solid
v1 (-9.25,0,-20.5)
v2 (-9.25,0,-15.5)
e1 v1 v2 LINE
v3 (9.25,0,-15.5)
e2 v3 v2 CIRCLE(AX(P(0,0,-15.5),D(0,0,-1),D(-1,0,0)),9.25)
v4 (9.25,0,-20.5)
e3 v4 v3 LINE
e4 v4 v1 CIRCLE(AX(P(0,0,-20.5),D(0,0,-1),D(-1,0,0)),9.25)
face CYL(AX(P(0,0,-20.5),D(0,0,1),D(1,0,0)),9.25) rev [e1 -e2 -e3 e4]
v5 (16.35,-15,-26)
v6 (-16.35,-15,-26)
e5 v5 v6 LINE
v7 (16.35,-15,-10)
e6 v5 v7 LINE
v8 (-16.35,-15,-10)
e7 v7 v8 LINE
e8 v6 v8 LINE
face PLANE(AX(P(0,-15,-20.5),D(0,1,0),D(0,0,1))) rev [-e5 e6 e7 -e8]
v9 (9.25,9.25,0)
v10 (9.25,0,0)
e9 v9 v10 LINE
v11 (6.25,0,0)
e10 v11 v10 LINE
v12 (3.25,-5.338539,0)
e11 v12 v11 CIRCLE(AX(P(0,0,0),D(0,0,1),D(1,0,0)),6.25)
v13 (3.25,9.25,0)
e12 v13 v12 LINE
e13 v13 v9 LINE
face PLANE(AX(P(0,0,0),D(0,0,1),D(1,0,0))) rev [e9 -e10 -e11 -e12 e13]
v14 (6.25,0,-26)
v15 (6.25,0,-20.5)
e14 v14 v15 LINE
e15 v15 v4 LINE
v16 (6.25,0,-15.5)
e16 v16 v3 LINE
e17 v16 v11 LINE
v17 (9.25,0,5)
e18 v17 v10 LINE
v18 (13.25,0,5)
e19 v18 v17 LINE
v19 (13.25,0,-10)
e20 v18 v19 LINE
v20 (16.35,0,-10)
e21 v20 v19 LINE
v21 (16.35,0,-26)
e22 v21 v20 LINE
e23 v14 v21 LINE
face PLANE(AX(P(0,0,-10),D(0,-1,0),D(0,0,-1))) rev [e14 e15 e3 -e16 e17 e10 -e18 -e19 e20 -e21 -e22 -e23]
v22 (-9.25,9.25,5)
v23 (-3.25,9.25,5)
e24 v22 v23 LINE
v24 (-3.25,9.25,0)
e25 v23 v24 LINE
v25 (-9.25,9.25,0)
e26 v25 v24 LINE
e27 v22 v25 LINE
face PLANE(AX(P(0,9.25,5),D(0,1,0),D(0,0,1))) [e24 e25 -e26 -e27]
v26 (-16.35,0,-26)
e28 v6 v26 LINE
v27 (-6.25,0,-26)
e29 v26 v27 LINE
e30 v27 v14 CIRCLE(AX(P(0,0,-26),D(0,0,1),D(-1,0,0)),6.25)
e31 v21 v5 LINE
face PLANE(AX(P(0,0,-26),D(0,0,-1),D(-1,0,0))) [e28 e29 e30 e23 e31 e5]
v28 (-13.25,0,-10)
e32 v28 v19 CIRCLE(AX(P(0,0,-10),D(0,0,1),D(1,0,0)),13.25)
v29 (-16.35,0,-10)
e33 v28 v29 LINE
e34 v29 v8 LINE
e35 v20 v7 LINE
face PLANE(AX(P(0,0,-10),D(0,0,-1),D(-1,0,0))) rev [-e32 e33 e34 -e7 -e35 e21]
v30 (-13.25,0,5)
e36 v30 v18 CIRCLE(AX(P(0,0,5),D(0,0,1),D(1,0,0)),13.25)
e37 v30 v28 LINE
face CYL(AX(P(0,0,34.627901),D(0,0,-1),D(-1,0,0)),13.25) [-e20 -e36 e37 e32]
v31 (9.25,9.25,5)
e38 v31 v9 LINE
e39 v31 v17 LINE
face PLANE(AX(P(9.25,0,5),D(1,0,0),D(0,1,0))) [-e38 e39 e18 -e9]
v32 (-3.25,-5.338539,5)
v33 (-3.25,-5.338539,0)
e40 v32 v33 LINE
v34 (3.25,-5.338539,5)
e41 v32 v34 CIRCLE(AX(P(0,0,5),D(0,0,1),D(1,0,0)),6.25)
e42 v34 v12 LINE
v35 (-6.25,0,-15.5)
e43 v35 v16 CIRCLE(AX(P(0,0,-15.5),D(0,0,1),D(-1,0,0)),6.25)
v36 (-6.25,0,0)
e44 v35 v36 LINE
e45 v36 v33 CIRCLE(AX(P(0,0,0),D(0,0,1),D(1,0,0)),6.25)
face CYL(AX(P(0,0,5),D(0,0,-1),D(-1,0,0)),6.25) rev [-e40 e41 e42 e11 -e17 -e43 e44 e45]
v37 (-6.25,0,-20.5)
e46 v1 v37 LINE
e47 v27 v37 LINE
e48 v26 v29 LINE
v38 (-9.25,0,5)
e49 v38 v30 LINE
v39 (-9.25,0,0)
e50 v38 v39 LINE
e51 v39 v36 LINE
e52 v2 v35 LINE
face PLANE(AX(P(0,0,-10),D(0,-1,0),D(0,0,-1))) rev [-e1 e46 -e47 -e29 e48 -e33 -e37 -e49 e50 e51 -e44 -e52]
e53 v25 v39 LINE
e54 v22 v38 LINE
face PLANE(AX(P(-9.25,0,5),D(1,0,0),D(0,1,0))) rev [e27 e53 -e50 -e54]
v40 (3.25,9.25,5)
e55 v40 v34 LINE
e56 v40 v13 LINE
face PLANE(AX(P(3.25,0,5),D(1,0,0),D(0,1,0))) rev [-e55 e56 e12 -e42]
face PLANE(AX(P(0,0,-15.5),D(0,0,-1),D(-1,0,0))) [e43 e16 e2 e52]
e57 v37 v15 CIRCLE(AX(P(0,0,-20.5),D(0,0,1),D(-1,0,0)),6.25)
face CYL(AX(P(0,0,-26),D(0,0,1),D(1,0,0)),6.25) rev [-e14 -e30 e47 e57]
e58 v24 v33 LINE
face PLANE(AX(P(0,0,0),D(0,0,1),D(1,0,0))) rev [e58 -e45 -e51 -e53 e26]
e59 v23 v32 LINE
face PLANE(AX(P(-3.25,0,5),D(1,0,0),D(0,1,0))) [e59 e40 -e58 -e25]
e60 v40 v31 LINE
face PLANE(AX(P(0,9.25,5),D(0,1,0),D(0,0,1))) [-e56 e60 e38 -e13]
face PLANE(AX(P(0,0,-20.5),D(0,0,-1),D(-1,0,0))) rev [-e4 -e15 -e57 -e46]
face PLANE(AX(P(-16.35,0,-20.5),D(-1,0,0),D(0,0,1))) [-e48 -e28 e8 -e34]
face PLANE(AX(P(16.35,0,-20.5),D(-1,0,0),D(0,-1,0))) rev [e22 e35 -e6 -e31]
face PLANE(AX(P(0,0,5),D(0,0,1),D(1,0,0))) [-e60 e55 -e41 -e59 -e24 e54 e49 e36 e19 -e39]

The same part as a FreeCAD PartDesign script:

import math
import FreeCAD as App
import Part
import Sketcher

V = App.Vector

doc = App.newDocument("Part")
body = doc.addObject("PartDesign::Body", "Body")

sketch1 = doc.addObject("Sketcher::SketchObject", "Sketch")
body.addObject(sketch1)
sketch1.AttachmentSupport = (doc.XY_Plane, [""])
sketch1.MapMode = "FlatFace"
sketch1.addGeometry([
    Part.LineSegment(V(-3, 9, 0), V(-9, 9, 0)),
    Part.LineSegment(V(-9, 9, 0), V(-9, 0, 0)),
    Part.ArcOfCircle(Part.Circle(V(0, 0, 0), V(0, 0, 1), 9), math.radians(-180), math.radians(0)),
    Part.LineSegment(V(9, 0, 0), V(9, 9, 0)),
    Part.LineSegment(V(9, 9, 0), V(3, 9, 0)),
    Part.LineSegment(V(3, 9, 0), V(3, -5, 0)),
    Part.ArcOfCircle(Part.Circle(V(0, 0, 0), V(0, 0, 1), 6), math.radians(-121), math.radians(-59)),
    Part.LineSegment(V(-3, -5, 0), V(-3, 9, 0)),
], False)
sketch1.addConstraint([
    Sketcher.Constraint("Coincident", 0, 2, 1, 1),
    Sketcher.Constraint("Tangent", 1, 2, 2, 1),
    Sketcher.Constraint("Tangent", 2, 2, 3, 1),
    Sketcher.Constraint("Coincident", 3, 2, 4, 1),
    Sketcher.Constraint("Coincident", 4, 2, 5, 1),
    Sketcher.Constraint("Coincident", 5, 2, 6, 2),
    Sketcher.Constraint("Coincident", 6, 1, 7, 1),
    Sketcher.Constraint("Coincident", 7, 2, 0, 1),
    Sketcher.Constraint("Horizontal", 0),
    Sketcher.Constraint("Vertical", 1),
    Sketcher.Constraint("Vertical", 3),
    Sketcher.Constraint("Horizontal", 4),
    Sketcher.Constraint("Vertical", 5),
    Sketcher.Constraint("Vertical", 7),
    Sketcher.Constraint("Coincident", 2, 3, -1, 1),
    Sketcher.Constraint("Coincident", 6, 3, -1, 1),
    Sketcher.Constraint("Symmetric", 4, 2, 7, 2, -2),
    Sketcher.Constraint("DistanceX", 0, 2, 0, 1, 6.0),
    Sketcher.Constraint("Radius", 2, 9.25),
    Sketcher.Constraint("Radius", 6, 6.25),
    Sketcher.Constraint("DistanceY", 1, 2, 1, 1, 9.25),
])
pad1 = doc.addObject("PartDesign::Pad", "Pad")
body.addObject(pad1)
pad1.Profile = sketch1
pad1.Length = 5

sketch2 = doc.addObject("Sketcher::SketchObject", "Sketch001")
body.addObject(sketch2)
sketch2.AttachmentSupport = (doc.XY_Plane, [""])
sketch2.MapMode = "FlatFace"
sketch2.addGeometry([
    Part.LineSegment(V(-6.2, 0, 0), V(-9.2, 0, 0)),
    Part.ArcOfCircle(Part.Circle(V(0, 0, 0), V(0, 0, 1), 9.2), math.radians(-180), math.radians(0)),
    Part.LineSegment(V(9.2, 0, 0), V(6.2, 0, 0)),
    Part.ArcOfCircle(Part.Circle(V(0, 0, 0), V(0, 0, 1), 6.2), math.radians(-180), math.radians(0)),
], False)
sketch2.addConstraint([
    Sketcher.Constraint("Coincident", 0, 2, 1, 1),
    Sketcher.Constraint("Coincident", 1, 2, 2, 1),
    Sketcher.Constraint("Coincident", 2, 2, 3, 2),
    Sketcher.Constraint("Coincident", 3, 1, 0, 1),
    Sketcher.Constraint("Horizontal", 0),
    Sketcher.Constraint("Horizontal", 2),
    Sketcher.Constraint("Coincident", 1, 3, -1, 1),
    Sketcher.Constraint("Coincident", 3, 3, -1, 1),
    Sketcher.Constraint("PointOnObject", 0, 2, -1),
    Sketcher.Constraint("PointOnObject", 1, 2, -1),
    Sketcher.Constraint("DistanceX", 0, 2, 0, 1, 3.0),
    Sketcher.Constraint("Radius", 1, 9.25),
])
pad2 = doc.addObject("PartDesign::Pad", "Pad001")
body.addObject(pad2)
pad2.Profile = sketch2
pad2.Length = 10
pad2.Reversed = True
body2 = doc.addObject("PartDesign::Body", "Body001")

sketch3 = doc.addObject("Sketcher::SketchObject", "Sketch002")
body2.addObject(sketch3)
sketch3.AttachmentSupport = (doc.getObject("XY_Plane001"), [""])
sketch3.MapMode = "FlatFace"
sketch3.AttachmentOffset = App.Placement(V(0, 0, -10), App.Rotation())
sketch3.addGeometry([
    Part.ArcOfCircle(Part.Circle(V(0, 0, 0), V(0, 0, 1), 9), math.radians(180), math.radians(360)),
    Part.LineSegment(V(9, 0, 0), V(16, 0, 0)),
    Part.LineSegment(V(16, 0, 0), V(16, -15, 0)),
    Part.LineSegment(V(16, -15, 0), V(-16, -15, 0)),
    Part.LineSegment(V(-16, -15, 0), V(-16, 0, 0)),
    Part.LineSegment(V(-16, 0, 0), V(-9, 0, 0)),
], False)
sketch3.addConstraint([
    Sketcher.Constraint("Coincident", 0, 2, 1, 1),
    Sketcher.Constraint("Coincident", 1, 2, 2, 1),
    Sketcher.Constraint("Coincident", 2, 2, 3, 1),
    Sketcher.Constraint("Coincident", 3, 2, 4, 1),
    Sketcher.Constraint("Coincident", 4, 2, 5, 1),
    Sketcher.Constraint("Coincident", 5, 2, 0, 1),
    Sketcher.Constraint("Horizontal", 1),
    Sketcher.Constraint("Vertical", 2),
    Sketcher.Constraint("Horizontal", 3),
    Sketcher.Constraint("Vertical", 4),
    Sketcher.Constraint("Horizontal", 5),
    Sketcher.Constraint("Coincident", 0, 3, -1, 1),
    Sketcher.Constraint("Symmetric", 1, 2, 4, 2, -1, 1),
    Sketcher.Constraint("PointOnObject", 0, 2, -1),
    Sketcher.Constraint("DistanceY", 2, 2, 2, 1, 15.0),
    Sketcher.Constraint("Radius", 0, 9.25),
    Sketcher.Constraint("DistanceX", 1, 1, 1, 2, 7.1),
])
pad3 = doc.addObject("PartDesign::Pad", "Pad002")
body2.addObject(pad3)
pad3.Profile = sketch3
pad3.Length = 10.5
pad3.Reversed = True
body.AllowCompound = True
doc.recompute()

boolean = doc.addObject("PartDesign::Boolean", "Boolean")
body.addObject(boolean)
boolean.Type = "Fuse"
boolean.addObjects([body2])

sketch4 = doc.addObject("Sketcher::SketchObject", "Sketch003")
body.addObject(sketch4)
sketch4.AttachmentSupport = (doc.XY_Plane, [""])
sketch4.MapMode = "FlatFace"
sketch4.AttachmentOffset = App.Placement(V(0, 0, -10), App.Rotation())
sketch4.addGeometry([
    Part.ArcOfCircle(Part.Circle(V(0, 0, 0), V(0, 0, 1), 9.2), math.radians(180), math.radians(360)),
    Part.LineSegment(V(-9.2, 0, 0), V(-13.2, 0, 0)),
    Part.ArcOfCircle(Part.Circle(V(0, 0, 0), V(0, 0, 1), 13.2), math.radians(180), math.radians(360)),
    Part.LineSegment(V(13.2, 0, 0), V(9.2, 0, 0)),
], False)
sketch4.addConstraint([
    Sketcher.Constraint("Coincident", 0, 1, 1, 1),
    Sketcher.Constraint("Coincident", 1, 2, 2, 1),
    Sketcher.Constraint("Coincident", 2, 2, 3, 1),
    Sketcher.Constraint("Coincident", 3, 2, 0, 2),
    Sketcher.Constraint("Horizontal", 1),
    Sketcher.Constraint("Horizontal", 3),
    Sketcher.Constraint("Coincident", 0, 3, -1, 1),
    Sketcher.Constraint("Coincident", 2, 3, -1, 1),
    Sketcher.Constraint("PointOnObject", 0, 1, -1),
    Sketcher.Constraint("PointOnObject", 2, 2, -1),
    Sketcher.Constraint("DistanceX", 1, 2, 1, 1, 4.0),
    Sketcher.Constraint("Radius", 0, 9.25),
])
pad4 = doc.addObject("PartDesign::Pad", "Pad003")
body.addObject(pad4)
pad4.Profile = sketch4
pad4.Length = 15

sketch5 = doc.addObject("Sketcher::SketchObject", "Sketch004")
body.addObject(sketch5)
sketch5.AttachmentSupport = (doc.XY_Plane, [""])
sketch5.MapMode = "FlatFace"
sketch5.AttachmentOffset = App.Placement(V(0, 0, -10), App.Rotation())
sketch5.addGeometry([
    Part.LineSegment(V(-9.2, 0, 0), V(-6.2, 0, 0)),
    Part.ArcOfCircle(Part.Circle(V(0, 0, 0), V(0, 0, 1), 6.2), math.radians(180), math.radians(360)),
    Part.LineSegment(V(6.2, 0, 0), V(9.2, 0, 0)),
    Part.ArcOfCircle(Part.Circle(V(0, 0, 0), V(0, 0, 1), 9.2), math.radians(180), math.radians(360)),
], False)
sketch5.addConstraint([
    Sketcher.Constraint("Coincident", 0, 2, 1, 1),
    Sketcher.Constraint("Coincident", 1, 2, 2, 1),
    Sketcher.Constraint("Coincident", 2, 2, 3, 2),
    Sketcher.Constraint("Coincident", 3, 1, 0, 1),
    Sketcher.Constraint("Horizontal", 0),
    Sketcher.Constraint("Horizontal", 2),
    Sketcher.Constraint("Coincident", 1, 3, -1, 1),
    Sketcher.Constraint("Coincident", 3, 3, -1, 1),
    Sketcher.Constraint("PointOnObject", 0, 2, -1),
    Sketcher.Constraint("PointOnObject", 1, 2, -1),
    Sketcher.Constraint("DistanceX", 0, 1, 0, 2, 3.0),
    Sketcher.Constraint("Radius", 1, 6.25),
])
pad5 = doc.addObject("PartDesign::Pad", "Pad004")
body.addObject(pad5)
pad5.Profile = sketch5
pad5.Length = 5.5
pad5.Reversed = True

sketch6 = doc.addObject("Sketcher::SketchObject", "Sketch005")
body.addObject(sketch6)
sketch6.AttachmentSupport = (doc.XY_Plane, [""])
sketch6.MapMode = "FlatFace"
sketch6.AttachmentOffset = App.Placement(V(0, 0, -20.5), App.Rotation())
sketch6.addGeometry([
    Part.LineSegment(V(-16, -15, 0), V(-16, 0, 0)),
    Part.LineSegment(V(-16, 0, 0), V(-6, 0, 0)),
    Part.ArcOfCircle(Part.Circle(V(0, 0, 0), V(0, 0, 1), 6), math.radians(180), math.radians(360)),
    Part.LineSegment(V(6, 0, 0), V(16, 0, 0)),
    Part.LineSegment(V(16, 0, 0), V(16, -15, 0)),
    Part.LineSegment(V(16, -15, 0), V(-16, -15, 0)),
], False)
sketch6.addConstraint([
    Sketcher.Constraint("Coincident", 0, 2, 1, 1),
    Sketcher.Constraint("Coincident", 1, 2, 2, 1),
    Sketcher.Constraint("Coincident", 2, 2, 3, 1),
    Sketcher.Constraint("Coincident", 3, 2, 4, 1),
    Sketcher.Constraint("Coincident", 4, 2, 5, 1),
    Sketcher.Constraint("Coincident", 5, 2, 0, 1),
    Sketcher.Constraint("Vertical", 0),
    Sketcher.Constraint("Horizontal", 1),
    Sketcher.Constraint("Horizontal", 3),
    Sketcher.Constraint("Vertical", 4),
    Sketcher.Constraint("Horizontal", 5),
    Sketcher.Constraint("Coincident", 2, 3, -1, 1),
    Sketcher.Constraint("Symmetric", 0, 2, 3, 2, -1, 1),
    Sketcher.Constraint("PointOnObject", 0, 2, -1),
    Sketcher.Constraint("DistanceY", 0, 1, 0, 2, 15.0),
    Sketcher.Constraint("Radius", 2, 6.25),
    Sketcher.Constraint("DistanceX", 1, 1, 1, 2, 10.1),
])
pad6 = doc.addObject("PartDesign::Pad", "Pad005")
body.addObject(pad6)
pad6.Profile = sketch6
pad6.Length = 5.5
pad6.Reversed = True

doc.recompute()
